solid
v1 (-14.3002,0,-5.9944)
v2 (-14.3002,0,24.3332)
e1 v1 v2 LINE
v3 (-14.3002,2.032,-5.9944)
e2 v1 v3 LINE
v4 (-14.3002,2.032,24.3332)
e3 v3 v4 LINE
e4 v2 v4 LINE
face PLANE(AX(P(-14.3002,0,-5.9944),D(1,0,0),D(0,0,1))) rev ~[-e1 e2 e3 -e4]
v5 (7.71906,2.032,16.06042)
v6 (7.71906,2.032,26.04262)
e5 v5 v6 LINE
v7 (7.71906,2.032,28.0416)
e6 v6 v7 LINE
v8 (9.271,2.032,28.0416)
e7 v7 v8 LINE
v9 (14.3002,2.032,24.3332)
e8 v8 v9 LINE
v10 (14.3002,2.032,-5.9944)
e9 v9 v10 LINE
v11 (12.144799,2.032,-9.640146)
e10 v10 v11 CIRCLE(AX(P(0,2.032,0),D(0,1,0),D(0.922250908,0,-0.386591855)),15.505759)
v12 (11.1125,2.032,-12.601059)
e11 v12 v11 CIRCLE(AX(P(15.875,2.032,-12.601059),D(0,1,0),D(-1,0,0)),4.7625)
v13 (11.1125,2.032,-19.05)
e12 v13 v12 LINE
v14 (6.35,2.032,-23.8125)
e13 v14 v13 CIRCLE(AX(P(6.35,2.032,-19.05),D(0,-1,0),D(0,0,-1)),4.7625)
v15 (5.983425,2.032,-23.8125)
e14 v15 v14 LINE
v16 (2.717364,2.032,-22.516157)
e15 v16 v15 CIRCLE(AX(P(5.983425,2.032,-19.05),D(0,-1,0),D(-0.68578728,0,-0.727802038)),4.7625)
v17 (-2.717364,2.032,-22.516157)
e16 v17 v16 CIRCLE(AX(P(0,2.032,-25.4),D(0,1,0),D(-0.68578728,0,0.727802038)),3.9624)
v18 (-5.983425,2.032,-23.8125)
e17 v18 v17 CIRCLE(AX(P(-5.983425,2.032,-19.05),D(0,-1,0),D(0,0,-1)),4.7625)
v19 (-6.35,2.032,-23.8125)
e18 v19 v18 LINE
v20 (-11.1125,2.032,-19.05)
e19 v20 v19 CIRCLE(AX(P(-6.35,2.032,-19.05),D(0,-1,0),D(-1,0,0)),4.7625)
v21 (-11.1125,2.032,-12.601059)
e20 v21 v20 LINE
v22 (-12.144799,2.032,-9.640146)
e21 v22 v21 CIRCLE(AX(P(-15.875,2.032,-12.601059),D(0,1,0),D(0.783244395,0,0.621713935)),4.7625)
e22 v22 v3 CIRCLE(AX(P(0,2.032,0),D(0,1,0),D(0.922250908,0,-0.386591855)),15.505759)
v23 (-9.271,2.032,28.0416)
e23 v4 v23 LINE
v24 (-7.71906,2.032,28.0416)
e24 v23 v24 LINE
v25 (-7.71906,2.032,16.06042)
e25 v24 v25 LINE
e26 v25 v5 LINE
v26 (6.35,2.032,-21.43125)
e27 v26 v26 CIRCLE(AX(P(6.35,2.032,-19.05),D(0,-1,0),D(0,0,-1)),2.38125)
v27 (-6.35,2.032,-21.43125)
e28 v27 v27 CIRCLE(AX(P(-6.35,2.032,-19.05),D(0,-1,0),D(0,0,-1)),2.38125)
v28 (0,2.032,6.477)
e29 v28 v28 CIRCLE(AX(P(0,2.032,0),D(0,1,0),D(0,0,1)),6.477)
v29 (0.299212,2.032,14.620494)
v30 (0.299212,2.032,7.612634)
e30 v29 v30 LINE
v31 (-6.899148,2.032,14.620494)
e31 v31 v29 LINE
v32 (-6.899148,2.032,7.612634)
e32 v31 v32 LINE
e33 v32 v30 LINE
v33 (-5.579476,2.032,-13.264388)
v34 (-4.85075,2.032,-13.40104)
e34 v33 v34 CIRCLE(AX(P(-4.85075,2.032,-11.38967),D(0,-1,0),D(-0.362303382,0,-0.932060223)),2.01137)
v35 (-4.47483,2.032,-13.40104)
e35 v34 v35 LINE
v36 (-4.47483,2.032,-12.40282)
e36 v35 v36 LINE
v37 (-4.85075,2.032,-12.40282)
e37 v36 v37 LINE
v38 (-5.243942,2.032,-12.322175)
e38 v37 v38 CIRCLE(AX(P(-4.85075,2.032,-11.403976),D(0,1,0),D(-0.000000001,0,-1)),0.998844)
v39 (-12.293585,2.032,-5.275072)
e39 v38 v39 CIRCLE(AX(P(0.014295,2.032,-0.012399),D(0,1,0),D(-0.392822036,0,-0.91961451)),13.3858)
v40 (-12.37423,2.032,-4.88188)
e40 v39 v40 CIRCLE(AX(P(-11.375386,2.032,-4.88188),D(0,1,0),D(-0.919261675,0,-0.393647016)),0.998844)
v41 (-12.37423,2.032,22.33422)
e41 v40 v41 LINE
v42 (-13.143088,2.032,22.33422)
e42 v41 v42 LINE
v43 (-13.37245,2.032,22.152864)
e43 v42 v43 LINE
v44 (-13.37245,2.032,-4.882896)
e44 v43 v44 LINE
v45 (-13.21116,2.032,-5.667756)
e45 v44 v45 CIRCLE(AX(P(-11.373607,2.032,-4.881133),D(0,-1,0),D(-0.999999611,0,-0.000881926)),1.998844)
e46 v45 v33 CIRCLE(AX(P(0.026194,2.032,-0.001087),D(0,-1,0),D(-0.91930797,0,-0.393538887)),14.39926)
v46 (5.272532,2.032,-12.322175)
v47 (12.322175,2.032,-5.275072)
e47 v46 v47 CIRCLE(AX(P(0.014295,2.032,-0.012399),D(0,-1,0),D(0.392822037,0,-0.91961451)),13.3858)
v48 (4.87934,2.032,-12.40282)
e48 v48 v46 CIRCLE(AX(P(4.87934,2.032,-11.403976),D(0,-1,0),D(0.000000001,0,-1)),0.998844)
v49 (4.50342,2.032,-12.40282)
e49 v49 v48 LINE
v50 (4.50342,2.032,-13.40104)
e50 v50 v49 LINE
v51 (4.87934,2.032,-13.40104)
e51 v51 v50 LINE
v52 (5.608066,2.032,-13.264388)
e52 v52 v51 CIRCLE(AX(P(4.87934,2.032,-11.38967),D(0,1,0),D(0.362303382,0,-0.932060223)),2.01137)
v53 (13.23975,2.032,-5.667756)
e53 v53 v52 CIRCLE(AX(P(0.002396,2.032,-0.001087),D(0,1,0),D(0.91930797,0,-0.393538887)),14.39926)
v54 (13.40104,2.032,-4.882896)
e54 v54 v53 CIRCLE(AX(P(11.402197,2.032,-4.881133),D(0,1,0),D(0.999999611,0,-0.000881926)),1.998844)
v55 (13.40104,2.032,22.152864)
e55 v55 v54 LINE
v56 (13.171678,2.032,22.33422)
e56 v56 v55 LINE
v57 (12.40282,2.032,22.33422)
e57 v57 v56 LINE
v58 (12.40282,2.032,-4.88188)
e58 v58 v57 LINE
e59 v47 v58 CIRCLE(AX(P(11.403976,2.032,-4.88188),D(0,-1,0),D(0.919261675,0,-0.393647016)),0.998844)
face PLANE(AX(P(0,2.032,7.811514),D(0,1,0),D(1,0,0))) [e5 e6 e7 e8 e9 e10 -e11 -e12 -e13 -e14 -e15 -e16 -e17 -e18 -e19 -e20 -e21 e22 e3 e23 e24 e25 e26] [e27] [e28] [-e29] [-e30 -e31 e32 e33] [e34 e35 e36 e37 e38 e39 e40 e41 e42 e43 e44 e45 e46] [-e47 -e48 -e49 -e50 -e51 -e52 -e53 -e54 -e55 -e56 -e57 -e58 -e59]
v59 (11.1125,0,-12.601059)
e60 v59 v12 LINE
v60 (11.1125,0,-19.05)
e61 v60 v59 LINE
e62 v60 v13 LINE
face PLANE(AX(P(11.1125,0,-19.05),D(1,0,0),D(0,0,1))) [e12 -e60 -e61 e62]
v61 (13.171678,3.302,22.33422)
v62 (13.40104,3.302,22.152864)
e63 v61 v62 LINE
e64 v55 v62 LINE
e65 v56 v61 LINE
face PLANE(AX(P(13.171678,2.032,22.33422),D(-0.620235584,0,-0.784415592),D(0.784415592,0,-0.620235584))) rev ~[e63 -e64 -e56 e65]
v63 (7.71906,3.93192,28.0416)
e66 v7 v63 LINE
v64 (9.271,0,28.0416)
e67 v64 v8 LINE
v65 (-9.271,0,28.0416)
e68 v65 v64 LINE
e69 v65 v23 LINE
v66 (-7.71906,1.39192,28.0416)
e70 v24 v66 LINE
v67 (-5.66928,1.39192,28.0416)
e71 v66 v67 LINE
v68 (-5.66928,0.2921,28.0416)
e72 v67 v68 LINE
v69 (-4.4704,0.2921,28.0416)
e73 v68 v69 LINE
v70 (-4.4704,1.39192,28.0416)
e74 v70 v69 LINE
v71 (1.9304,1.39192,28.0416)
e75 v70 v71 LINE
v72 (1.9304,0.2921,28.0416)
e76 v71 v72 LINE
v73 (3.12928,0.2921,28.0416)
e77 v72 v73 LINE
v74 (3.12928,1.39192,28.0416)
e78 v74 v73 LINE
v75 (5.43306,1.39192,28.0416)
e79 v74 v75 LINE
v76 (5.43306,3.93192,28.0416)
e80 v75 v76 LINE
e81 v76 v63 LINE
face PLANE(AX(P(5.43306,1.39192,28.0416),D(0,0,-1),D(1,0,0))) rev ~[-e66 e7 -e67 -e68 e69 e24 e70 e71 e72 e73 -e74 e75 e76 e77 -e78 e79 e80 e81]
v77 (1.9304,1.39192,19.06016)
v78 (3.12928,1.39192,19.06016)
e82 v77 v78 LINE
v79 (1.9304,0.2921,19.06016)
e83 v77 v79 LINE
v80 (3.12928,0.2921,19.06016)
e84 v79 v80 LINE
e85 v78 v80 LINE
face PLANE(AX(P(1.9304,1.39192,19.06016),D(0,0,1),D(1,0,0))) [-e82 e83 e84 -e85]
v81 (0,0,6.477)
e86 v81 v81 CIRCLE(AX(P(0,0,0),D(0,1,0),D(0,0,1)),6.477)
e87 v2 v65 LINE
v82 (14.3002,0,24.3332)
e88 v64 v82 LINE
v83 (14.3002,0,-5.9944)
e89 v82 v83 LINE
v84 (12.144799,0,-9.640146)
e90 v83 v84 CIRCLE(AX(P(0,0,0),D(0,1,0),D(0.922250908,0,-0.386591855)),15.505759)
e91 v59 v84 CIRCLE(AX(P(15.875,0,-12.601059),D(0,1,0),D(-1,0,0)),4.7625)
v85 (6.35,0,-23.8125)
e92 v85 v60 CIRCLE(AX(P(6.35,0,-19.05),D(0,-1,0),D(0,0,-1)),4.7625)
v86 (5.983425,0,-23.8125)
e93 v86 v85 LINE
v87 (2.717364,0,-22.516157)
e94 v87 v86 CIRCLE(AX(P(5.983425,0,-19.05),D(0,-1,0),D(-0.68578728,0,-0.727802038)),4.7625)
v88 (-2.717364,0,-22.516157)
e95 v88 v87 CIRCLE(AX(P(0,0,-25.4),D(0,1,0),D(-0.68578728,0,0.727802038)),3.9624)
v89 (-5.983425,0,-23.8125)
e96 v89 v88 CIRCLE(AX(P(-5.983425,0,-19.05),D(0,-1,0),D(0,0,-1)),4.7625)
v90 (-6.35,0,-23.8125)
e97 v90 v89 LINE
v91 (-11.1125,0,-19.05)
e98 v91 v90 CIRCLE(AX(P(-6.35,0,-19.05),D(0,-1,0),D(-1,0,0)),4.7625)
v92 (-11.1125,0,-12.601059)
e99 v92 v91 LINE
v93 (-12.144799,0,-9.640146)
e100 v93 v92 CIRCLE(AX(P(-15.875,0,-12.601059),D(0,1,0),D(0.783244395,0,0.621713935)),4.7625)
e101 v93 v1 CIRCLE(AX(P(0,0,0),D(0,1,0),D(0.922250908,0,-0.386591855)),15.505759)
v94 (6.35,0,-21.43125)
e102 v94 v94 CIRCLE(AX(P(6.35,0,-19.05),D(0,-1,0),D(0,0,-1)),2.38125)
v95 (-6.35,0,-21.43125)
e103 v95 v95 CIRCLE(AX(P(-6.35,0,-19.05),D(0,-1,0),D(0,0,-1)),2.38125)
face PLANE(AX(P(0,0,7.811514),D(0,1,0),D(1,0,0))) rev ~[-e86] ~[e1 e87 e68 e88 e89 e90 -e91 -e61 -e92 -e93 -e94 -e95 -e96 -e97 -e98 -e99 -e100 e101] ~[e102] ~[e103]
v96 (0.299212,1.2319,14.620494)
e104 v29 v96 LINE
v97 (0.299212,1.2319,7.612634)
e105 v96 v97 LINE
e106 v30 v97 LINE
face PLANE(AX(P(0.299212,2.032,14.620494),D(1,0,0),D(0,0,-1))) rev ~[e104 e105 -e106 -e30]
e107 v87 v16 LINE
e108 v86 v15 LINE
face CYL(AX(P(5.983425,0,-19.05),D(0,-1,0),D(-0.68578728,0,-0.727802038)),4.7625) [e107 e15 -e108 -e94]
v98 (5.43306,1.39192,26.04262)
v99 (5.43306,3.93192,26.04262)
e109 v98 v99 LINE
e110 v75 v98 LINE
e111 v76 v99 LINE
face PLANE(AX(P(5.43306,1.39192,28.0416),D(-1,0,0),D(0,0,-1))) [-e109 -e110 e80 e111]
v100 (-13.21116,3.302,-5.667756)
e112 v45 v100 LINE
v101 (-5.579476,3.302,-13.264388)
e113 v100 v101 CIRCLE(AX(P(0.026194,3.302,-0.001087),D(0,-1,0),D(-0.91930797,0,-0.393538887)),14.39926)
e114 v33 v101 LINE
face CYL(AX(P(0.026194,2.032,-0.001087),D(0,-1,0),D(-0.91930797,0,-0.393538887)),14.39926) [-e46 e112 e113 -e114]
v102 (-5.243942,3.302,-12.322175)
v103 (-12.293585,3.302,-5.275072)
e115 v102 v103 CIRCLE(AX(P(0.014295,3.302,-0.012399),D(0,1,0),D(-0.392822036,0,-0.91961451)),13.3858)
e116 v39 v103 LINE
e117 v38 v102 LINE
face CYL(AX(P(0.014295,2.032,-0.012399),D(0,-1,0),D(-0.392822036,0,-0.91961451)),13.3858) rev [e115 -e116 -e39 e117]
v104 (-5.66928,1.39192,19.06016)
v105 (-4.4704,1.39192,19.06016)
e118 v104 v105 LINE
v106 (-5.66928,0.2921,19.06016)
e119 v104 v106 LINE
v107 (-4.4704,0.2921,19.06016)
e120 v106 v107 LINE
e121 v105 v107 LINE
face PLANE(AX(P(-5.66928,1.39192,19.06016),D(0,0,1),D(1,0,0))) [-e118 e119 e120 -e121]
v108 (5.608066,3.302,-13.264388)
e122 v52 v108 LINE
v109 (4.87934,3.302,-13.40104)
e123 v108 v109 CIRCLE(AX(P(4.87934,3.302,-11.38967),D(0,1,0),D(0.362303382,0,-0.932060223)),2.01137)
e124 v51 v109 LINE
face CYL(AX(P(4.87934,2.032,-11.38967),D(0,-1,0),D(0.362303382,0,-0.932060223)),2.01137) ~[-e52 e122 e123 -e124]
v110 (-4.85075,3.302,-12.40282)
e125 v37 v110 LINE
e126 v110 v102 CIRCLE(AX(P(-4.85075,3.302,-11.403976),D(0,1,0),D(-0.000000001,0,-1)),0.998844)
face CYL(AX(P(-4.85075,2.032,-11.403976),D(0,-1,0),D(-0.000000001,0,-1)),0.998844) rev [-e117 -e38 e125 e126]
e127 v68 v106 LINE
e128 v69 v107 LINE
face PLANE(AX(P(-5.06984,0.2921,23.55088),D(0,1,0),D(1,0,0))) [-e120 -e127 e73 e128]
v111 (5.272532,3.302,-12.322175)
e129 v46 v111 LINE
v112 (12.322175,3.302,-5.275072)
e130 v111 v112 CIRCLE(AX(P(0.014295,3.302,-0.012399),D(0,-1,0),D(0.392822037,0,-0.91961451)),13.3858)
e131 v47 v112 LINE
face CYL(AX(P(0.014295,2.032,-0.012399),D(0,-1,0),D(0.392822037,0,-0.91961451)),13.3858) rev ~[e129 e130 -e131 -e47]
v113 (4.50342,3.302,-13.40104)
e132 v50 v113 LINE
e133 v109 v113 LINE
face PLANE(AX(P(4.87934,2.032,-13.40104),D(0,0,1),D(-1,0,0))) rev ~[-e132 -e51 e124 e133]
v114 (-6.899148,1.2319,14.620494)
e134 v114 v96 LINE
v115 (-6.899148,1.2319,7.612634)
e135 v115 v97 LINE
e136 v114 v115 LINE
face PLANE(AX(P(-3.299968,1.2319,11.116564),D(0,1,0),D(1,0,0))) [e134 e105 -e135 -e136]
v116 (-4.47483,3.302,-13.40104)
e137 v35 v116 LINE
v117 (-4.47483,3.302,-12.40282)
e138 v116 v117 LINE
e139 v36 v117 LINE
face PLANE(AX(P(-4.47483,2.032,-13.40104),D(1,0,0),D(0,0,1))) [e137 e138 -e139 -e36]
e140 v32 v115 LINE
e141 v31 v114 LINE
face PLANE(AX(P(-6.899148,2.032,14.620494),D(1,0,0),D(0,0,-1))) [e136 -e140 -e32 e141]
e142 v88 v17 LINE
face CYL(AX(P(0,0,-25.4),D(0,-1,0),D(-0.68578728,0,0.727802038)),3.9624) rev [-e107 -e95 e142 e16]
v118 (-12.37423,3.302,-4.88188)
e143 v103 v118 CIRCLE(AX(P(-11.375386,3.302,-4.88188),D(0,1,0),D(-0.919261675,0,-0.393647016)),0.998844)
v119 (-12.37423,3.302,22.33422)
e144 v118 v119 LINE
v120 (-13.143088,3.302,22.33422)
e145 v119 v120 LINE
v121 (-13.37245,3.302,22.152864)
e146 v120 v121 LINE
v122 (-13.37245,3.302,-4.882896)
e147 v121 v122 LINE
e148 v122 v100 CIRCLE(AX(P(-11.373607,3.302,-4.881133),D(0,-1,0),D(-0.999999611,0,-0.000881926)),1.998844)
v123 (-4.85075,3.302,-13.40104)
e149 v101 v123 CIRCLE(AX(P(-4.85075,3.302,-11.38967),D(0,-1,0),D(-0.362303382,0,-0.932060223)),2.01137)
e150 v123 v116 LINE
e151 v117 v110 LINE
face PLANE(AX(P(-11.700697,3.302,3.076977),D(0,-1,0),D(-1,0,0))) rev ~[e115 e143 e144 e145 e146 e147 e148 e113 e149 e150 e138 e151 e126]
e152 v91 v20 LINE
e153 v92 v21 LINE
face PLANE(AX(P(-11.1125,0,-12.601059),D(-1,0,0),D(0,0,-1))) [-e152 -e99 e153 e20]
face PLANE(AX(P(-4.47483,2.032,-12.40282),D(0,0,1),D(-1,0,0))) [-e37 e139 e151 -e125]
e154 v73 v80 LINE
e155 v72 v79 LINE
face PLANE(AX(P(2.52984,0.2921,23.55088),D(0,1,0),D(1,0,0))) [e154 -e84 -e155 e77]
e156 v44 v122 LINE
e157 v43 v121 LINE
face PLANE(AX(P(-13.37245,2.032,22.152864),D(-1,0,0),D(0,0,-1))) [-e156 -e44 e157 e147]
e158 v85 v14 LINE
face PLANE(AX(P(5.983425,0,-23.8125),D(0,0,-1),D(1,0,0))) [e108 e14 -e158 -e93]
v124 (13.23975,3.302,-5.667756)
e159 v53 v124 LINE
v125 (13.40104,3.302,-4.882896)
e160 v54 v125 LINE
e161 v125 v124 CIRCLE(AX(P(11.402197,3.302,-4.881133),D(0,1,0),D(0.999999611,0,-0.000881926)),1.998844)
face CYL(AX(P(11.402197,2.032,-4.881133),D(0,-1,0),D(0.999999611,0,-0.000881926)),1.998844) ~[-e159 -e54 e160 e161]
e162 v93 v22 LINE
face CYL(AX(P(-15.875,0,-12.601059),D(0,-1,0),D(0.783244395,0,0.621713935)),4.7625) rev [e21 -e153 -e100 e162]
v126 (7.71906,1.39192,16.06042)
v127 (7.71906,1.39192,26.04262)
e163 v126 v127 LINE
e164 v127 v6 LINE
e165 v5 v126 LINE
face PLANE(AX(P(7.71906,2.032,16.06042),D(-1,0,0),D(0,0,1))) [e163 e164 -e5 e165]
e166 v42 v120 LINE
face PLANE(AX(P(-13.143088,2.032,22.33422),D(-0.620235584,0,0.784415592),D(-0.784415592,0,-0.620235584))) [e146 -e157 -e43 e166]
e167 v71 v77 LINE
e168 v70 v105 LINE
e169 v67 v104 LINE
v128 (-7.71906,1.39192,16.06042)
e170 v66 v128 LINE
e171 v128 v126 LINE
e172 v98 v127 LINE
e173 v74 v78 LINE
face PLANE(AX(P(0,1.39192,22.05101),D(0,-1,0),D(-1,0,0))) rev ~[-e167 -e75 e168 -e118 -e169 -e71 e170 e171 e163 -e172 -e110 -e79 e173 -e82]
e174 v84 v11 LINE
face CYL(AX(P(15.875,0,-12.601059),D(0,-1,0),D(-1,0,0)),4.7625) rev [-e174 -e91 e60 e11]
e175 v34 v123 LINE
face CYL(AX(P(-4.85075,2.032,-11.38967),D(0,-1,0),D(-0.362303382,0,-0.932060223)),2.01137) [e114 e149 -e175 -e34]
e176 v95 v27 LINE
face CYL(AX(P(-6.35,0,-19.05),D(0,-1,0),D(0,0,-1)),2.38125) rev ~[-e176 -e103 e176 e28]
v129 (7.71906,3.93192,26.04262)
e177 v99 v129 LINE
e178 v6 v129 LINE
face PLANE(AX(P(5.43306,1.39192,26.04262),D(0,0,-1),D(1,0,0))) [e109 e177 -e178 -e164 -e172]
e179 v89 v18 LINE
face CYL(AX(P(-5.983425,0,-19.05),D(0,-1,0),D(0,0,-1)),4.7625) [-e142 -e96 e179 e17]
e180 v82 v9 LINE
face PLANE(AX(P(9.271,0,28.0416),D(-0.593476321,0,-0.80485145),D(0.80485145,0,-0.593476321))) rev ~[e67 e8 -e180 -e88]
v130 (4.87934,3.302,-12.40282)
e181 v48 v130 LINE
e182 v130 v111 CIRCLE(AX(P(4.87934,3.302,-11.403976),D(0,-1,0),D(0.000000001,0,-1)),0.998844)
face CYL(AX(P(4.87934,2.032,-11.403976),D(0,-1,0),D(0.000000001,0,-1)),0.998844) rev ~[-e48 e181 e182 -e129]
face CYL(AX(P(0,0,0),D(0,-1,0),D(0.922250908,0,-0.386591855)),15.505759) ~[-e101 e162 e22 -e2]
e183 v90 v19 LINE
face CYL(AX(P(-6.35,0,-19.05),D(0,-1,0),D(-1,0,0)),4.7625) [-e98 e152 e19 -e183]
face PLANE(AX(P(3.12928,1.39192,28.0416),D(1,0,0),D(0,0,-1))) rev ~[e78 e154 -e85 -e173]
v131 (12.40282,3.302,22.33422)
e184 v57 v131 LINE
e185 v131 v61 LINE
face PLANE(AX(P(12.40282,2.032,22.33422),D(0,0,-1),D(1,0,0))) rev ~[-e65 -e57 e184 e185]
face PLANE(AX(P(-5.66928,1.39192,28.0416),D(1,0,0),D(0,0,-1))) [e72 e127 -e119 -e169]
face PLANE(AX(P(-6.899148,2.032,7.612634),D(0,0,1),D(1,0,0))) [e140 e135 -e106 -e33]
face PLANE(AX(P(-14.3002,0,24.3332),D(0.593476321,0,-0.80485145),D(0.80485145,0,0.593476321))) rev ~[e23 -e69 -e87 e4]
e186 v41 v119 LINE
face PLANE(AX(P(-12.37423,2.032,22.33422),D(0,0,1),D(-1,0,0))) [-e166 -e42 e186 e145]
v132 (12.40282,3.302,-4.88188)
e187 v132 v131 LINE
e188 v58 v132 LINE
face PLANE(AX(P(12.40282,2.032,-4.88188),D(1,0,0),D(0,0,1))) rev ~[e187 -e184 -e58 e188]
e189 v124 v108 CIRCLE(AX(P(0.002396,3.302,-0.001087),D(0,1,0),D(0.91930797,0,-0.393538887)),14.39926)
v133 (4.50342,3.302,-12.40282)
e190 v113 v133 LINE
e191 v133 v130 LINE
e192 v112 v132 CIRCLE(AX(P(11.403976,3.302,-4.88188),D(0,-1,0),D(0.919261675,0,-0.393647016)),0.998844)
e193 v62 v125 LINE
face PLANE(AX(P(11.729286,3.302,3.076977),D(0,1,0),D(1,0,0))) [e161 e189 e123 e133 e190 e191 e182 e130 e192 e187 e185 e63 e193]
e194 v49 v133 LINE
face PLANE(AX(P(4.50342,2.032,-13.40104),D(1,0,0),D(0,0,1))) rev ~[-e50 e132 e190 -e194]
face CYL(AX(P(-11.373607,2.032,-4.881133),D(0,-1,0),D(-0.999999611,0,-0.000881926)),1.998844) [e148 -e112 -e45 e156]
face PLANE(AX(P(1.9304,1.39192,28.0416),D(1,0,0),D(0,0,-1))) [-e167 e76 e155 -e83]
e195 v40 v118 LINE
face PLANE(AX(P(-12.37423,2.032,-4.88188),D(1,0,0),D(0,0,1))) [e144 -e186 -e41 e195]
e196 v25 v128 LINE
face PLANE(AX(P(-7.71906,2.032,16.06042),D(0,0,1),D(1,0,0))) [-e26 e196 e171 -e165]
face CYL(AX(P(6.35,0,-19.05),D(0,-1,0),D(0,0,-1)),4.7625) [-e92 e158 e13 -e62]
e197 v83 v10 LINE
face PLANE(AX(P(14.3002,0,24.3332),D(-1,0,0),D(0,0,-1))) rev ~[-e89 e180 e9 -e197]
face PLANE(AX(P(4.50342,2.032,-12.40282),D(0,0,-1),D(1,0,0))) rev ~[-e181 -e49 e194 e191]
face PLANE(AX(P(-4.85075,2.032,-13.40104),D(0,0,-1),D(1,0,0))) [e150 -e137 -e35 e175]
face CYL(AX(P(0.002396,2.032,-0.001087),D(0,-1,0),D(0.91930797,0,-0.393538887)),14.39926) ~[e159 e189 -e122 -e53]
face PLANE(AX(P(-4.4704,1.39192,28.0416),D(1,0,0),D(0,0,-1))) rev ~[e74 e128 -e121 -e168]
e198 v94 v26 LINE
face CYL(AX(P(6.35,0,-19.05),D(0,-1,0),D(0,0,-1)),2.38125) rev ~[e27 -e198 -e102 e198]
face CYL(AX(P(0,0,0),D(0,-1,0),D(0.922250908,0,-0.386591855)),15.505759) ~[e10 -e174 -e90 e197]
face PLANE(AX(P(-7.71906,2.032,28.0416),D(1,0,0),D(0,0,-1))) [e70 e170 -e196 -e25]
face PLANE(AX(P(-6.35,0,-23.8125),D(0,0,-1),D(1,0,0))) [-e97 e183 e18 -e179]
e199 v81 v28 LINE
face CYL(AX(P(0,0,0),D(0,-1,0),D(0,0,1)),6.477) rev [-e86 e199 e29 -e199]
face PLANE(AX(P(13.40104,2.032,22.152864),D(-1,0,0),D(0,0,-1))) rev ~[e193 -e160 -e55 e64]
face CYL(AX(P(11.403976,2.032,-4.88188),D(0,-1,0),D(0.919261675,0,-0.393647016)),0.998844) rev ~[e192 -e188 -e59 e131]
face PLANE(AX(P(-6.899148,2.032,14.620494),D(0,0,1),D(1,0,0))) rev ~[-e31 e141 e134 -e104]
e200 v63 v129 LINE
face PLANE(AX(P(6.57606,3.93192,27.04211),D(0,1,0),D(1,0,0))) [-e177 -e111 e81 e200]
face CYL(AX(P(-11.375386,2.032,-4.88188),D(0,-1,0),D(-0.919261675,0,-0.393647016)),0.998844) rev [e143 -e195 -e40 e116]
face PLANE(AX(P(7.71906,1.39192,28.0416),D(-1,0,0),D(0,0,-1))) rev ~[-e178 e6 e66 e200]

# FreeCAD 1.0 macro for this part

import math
import FreeCAD as App
import Part
import Sketcher
from FreeCAD import Vector
Q = App.Units.Quantity

doc = App.newDocument("Part")
params = doc.addObject("Spreadsheet::Sheet", "Params")
for row, (alias, value) in enumerate([
    ("sketch1_diameter", "0.51 in"),
    ("sketch1_width", "0.73 in"),
    ("sketch1_height", "1.194 in"),
    ("pad1_length", "0.08 in"),
    ("pocket1_length", "0.0252 in"),
    ("pocket2_length", "0.0433 in"),
    ("pocket3_length", "0.0315 in"),
    ("sketch5_radius", "0.527 in"),
    ("pad2_length", "0.05 in"),
    ("sketch6_width", "0.09 in"),
    ("pad3_length", "0.1 in"),
    ("sketch7_diameter", "0.1875 in"),
    ("sketch7_radius", "0.1875 in"),
    ("sketch7_radius2", "0.156 in"),
    ("pad4_length", "0.08 in"),
], start=1):
    params.set(f"A{row}", alias)
    params.set(f"B{row}", "=" + value)
    params.setAlias(f"B{row}", alias)

body = doc.addObject("PartDesign::Body", "Body")

# Sketch on XZ plane
sketch1 = body.newObject("Sketcher::SketchObject", "Sketch")
sketch1.AttachmentSupport = (doc.getObject("XZ_Plane"), [""])
sketch1.MapMode = "FlatFace"
sketch1.addGeometry(Part.LineSegment(Vector(-14, -6, 0), Vector(-14, 24, 0)), False)
sketch1.addGeometry(Part.LineSegment(Vector(-14, 24, 0), Vector(-9, 28, 0)), False)
sketch1.addGeometry(Part.LineSegment(Vector(-9, 28, 0), Vector(9, 28, 0)), False)
sketch1.addGeometry(Part.LineSegment(Vector(9, 28, 0), Vector(14, 24, 0)), False)
sketch1.addGeometry(Part.LineSegment(Vector(14, 24, 0), Vector(14, -6, 0)), False)
sketch1.addGeometry(Part.ArcOfCircle(Part.Circle(Vector(0, 0, 0), Vector(0, 0, 1), 16), math.radians(-157), math.radians(-23)), False)
sketch1.addGeometry(Part.Circle(Vector(0, 0, 0), Vector(0, 0, 1), 6), False)
sketch1.addConstraint(Sketcher.Constraint("Coincident", 0, 2, 1, 1))
sketch1.addConstraint(Sketcher.Constraint("Coincident", 1, 2, 2, 1))
sketch1.addConstraint(Sketcher.Constraint("Coincident", 2, 2, 3, 1))
sketch1.addConstraint(Sketcher.Constraint("Coincident", 3, 2, 4, 1))
sketch1.addConstraint(Sketcher.Constraint("Coincident", 4, 2, 5, 2))
sketch1.addConstraint(Sketcher.Constraint("Coincident", 5, 1, 0, 1))
sketch1.addConstraint(Sketcher.Constraint("Vertical", 0))
sketch1.addConstraint(Sketcher.Constraint("Horizontal", 2))
sketch1.addConstraint(Sketcher.Constraint("Vertical", 4))
sketch1.addConstraint(Sketcher.Constraint("Coincident", 5, 3, -1, 1))
sketch1.addConstraint(Sketcher.Constraint("Coincident", 6, 3, -1, 1))
sketch1.addConstraint(Sketcher.Constraint("Symmetric", 0, 2, 3, 2, -2))
sketch1.addConstraint(Sketcher.Constraint("Equal", 1, 3))
sketch1.addConstraint(Sketcher.Constraint("Diameter", 6, Q("0.51 in")))
sketch1.addConstraint(Sketcher.Constraint("DistanceX", 2, 1, 2, 2, Q("0.73 in")))
sketch1.addConstraint(Sketcher.Constraint("DistanceY", 0, 1, 0, 2, Q("1.194 in")))
sketch1.addConstraint(Sketcher.Constraint("DistanceY", 4, 2, 2, 2, Q("1.34 in")))
sketch1.addConstraint(Sketcher.Constraint("DistanceX", 0, 2, -1, 1, Q("0.563 in")))
sketch1.addConstraint(Sketcher.Constraint("DistanceY", -1, 1, 0, 2, Q("0.958 in")))
sketch1.setExpression("Constraints[13]", "Params.sketch1_diameter")
sketch1.setExpression("Constraints[14]", "Params.sketch1_width")
sketch1.setExpression("Constraints[15]", "Params.sketch1_height")
pad1 = body.newObject("PartDesign::Pad", "Pad")
pad1.Profile = sketch1
pad1.setExpression("Length", "Params.pad1_length")
pad1.Reversed = True

# Sketch on XZ plane
sketch2 = body.newObject("Sketcher::SketchObject", "Sketch001")
sketch2.AttachmentSupport = (doc.getObject("XZ_Plane"), [""])
sketch2.MapMode = "FlatFace"
sketch2.AttachmentOffset = App.Placement(Vector(0, 0, -0.08 * 25.4), App.Rotation())
sketch2.addGeometry(Part.LineSegment(Vector(-8, 28, 0), Vector(8, 28, 0)), False)
sketch2.addGeometry(Part.LineSegment(Vector(8, 28, 0), Vector(8, 16, 0)), False)
sketch2.addGeometry(Part.LineSegment(Vector(8, 16, 0), Vector(-8, 16, 0)), False)
sketch2.addGeometry(Part.LineSegment(Vector(-8, 16, 0), Vector(-8, 28, 0)), False)
sketch2.addConstraint(Sketcher.Constraint("Coincident", 0, 2, 1, 1))
sketch2.addConstraint(Sketcher.Constraint("Coincident", 1, 2, 2, 1))
sketch2.addConstraint(Sketcher.Constraint("Coincident", 2, 2, 3, 1))
sketch2.addConstraint(Sketcher.Constraint("Coincident", 3, 2, 0, 1))
sketch2.addConstraint(Sketcher.Constraint("Horizontal", 0))
sketch2.addConstraint(Sketcher.Constraint("Vertical", 1))
sketch2.addConstraint(Sketcher.Constraint("Horizontal", 2))
sketch2.addConstraint(Sketcher.Constraint("Vertical", 3))
sketch2.addConstraint(Sketcher.Constraint("DistanceX", 0, 1, 0, 2, Q("0.6078 in")))
sketch2.addConstraint(Sketcher.Constraint("DistanceY", 1, 2, 1, 1, Q("0.4717 in")))
sketch2.addConstraint(Sketcher.Constraint("DistanceY", -1, 1, 0, 2, Q("1.104 in")))
sketch2.addConstraint(Sketcher.Constraint("DistanceX", -1, 1, 0, 2, Q("0.3039 in")))
pocket1 = body.newObject("PartDesign::Pocket", "Pocket")
pocket1.Profile = sketch2
pocket1.setExpression("Length", "Params.pocket1_length")
pocket1.Reversed = True

# Sketch on XZ plane
sketch3 = body.newObject("Sketcher::SketchObject", "Sketch002")
sketch3.AttachmentSupport = (doc.getObject("XZ_Plane"), [""])
sketch3.MapMode = "FlatFace"
sketch3.AttachmentOffset = App.Placement(Vector(0, 0, -0.0548 * 25.4), App.Rotation())
sketch3.addGeometry(Part.LineSegment(Vector(-5.7, 19.1, 0), Vector(-5.7, 28, 0)), False)
sketch3.addGeometry(Part.LineSegment(Vector(-5.7, 28, 0), Vector(-4.5, 28, 0)), False)
sketch3.addGeometry(Part.LineSegment(Vector(-4.5, 28, 0), Vector(-4.5, 19.1, 0)), False)
sketch3.addGeometry(Part.LineSegment(Vector(-4.5, 19.1, 0), Vector(-5.7, 19.1, 0)), False)
sketch3.addGeometry(Part.LineSegment(Vector(1.9, 19.1, 0), Vector(1.9, 28, 0)), False)
sketch3.addGeometry(Part.LineSegment(Vector(1.9, 28, 0), Vector(3.1, 28, 0)), False)
sketch3.addGeometry(Part.LineSegment(Vector(3.1, 28, 0), Vector(3.1, 19.1, 0)), False)
sketch3.addGeometry(Part.LineSegment(Vector(3.1, 19.1, 0), Vector(1.9, 19.1, 0)), False)
sketch3.addConstraint(Sketcher.Constraint("Coincident", 0, 2, 1, 1))
sketch3.addConstraint(Sketcher.Constraint("Coincident", 1, 2, 2, 1))
sketch3.addConstraint(Sketcher.Constraint("Coincident", 2, 2, 3, 1))
sketch3.addConstraint(Sketcher.Constraint("Coincident", 3, 2, 0, 1))
sketch3.addConstraint(Sketcher.Constraint("Coincident", 4, 2, 5, 1))
sketch3.addConstraint(Sketcher.Constraint("Coincident", 5, 2, 6, 1))
sketch3.addConstraint(Sketcher.Constraint("Coincident", 6, 2, 7, 1))
sketch3.addConstraint(Sketcher.Constraint("Coincident", 7, 2, 4, 1))
sketch3.addConstraint(Sketcher.Constraint("Vertical", 0))
sketch3.addConstraint(Sketcher.Constraint("Horizontal", 1))
sketch3.addConstraint(Sketcher.Constraint("Vertical", 2))
sketch3.addConstraint(Sketcher.Constraint("Horizontal", 3))
sketch3.addConstraint(Sketcher.Constraint("Vertical", 4))
sketch3.addConstraint(Sketcher.Constraint("Horizontal", 5))
sketch3.addConstraint(Sketcher.Constraint("Vertical", 6))
sketch3.addConstraint(Sketcher.Constraint("Horizontal", 7))
sketch3.addConstraint(Sketcher.Constraint("Horizontal", 1, 2, 4, 2))
sketch3.addConstraint(Sketcher.Constraint("Horizontal", 3, 2, 6, 2))
sketch3.addConstraint(Sketcher.Constraint("Equal", 3, 5))
sketch3.addConstraint(Sketcher.Constraint("DistanceX", 1, 1, 1, 2, Q("0.0472 in")))
sketch3.addConstraint(Sketcher.Constraint("DistanceY", 0, 1, 0, 2, Q("0.3536 in")))
sketch3.addConstraint(Sketcher.Constraint("DistanceY", -1, 1, 0, 2, Q("1.104 in")))
sketch3.addConstraint(Sketcher.Constraint("DistanceX", 1, 2, -1, 1, Q("0.176 in")))
sketch3.addConstraint(Sketcher.Constraint("DistanceX", -1, 1, 4, 2, Q("0.076 in")))
pocket2 = body.newObject("PartDesign::Pocket", "Pocket001")
pocket2.Profile = sketch3
pocket2.setExpression("Length", "Params.pocket2_length")
pocket2.Reversed = True

# Sketch on XZ plane
sketch4 = body.newObject("Sketcher::SketchObject", "Sketch003")
sketch4.AttachmentSupport = (doc.getObject("XZ_Plane"), [""])
sketch4.MapMode = "FlatFace"
sketch4.AttachmentOffset = App.Placement(Vector(0, 0, -0.08 * 25.4), App.Rotation())
sketch4.addGeometry(Part.LineSegment(Vector(-7, 8, 0), Vector(-7, 15, 0)), False)
sketch4.addGeometry(Part.LineSegment(Vector(-7, 15, 0), Vector(0, 15, 0)), False)
sketch4.addGeometry(Part.LineSegment(Vector(0, 15, 0), Vector(0, 8, 0)), False)
sketch4.addGeometry(Part.LineSegment(Vector(0, 8, 0), Vector(-7, 8, 0)), False)
sketch4.addConstraint(Sketcher.Constraint("Coincident", 0, 2, 1, 1))
sketch4.addConstraint(Sketcher.Constraint("Coincident", 1, 2, 2, 1))
sketch4.addConstraint(Sketcher.Constraint("Coincident", 2, 2, 3, 1))
sketch4.addConstraint(Sketcher.Constraint("Coincident", 3, 2, 0, 1))
sketch4.addConstraint(Sketcher.Constraint("Vertical", 0))
sketch4.addConstraint(Sketcher.Constraint("Horizontal", 1))
sketch4.addConstraint(Sketcher.Constraint("Vertical", 2))
sketch4.addConstraint(Sketcher.Constraint("Horizontal", 3))
sketch4.addConstraint(Sketcher.Constraint("DistanceX", 1, 1, 1, 2, Q("0.2834 in")))
sketch4.addConstraint(Sketcher.Constraint("DistanceY", 0, 1, 0, 2, Q("0.2759 in")))
sketch4.addConstraint(Sketcher.Constraint("DistanceX", 0, 2, -1, 1, 6.899148))
sketch4.addConstraint(Sketcher.Constraint("DistanceY", -1, 1, 0, 2, 14.620494))
pocket3 = body.newObject("PartDesign::Pocket", "Pocket002")
pocket3.Profile = sketch4
pocket3.setExpression("Length", "Params.pocket3_length")
pocket3.Reversed = True

# Sketch on XZ plane
sketch5 = body.newObject("Sketcher::SketchObject", "Sketch004")
sketch5.AttachmentSupport = (doc.getObject("XZ_Plane"), [""])
sketch5.MapMode = "FlatFace"
sketch5.AttachmentOffset = App.Placement(Vector(0, 0, -0.08 * 25.4), App.Rotation())
sketch5.addGeometry(Part.LineSegment(Vector(12.4, 22.33, 0), Vector(13.17, 22.33, 0)), False)
sketch5.addGeometry(Part.LineSegment(Vector(13.17, 22.33, 0), Vector(13.4, 22.15, 0)), False)
sketch5.addGeometry(Part.LineSegment(Vector(13.4, 22.15, 0), Vector(13.4, -4.88, 0)), False)
sketch5.addGeometry(Part.ArcOfCircle(Part.Circle(Vector(11.4, -4.88, 0), Vector(0, 0, 1), 2), math.radians(-23), math.radians(0)), False)
sketch5.addGeometry(Part.ArcOfCircle(Part.Circle(Vector(0, 0, 0), Vector(0, 0, 1), 14.4), math.radians(-67), math.radians(-23)), False)
sketch5.addGeometry(Part.ArcOfCircle(Part.Circle(Vector(4.88, -11.39, 0), Vector(0, 0, 1), 2.01), math.radians(-90), math.radians(-69)), False)
sketch5.addGeometry(Part.LineSegment(Vector(4.88, -13.4, 0), Vector(4.5, -13.4, 0)), False)
sketch5.addGeometry(Part.LineSegment(Vector(4.5, -13.4, 0), Vector(4.5, -12.4, 0)), False)
sketch5.addGeometry(Part.LineSegment(Vector(4.5, -12.4, 0), Vector(4.88, -12.4, 0)), False)
sketch5.addGeometry(Part.ArcOfCircle(Part.Circle(Vector(4.88, -11.4, 0), Vector(0, 0, 1), 1), math.radians(-90), math.radians(-67)), False)
sketch5.addGeometry(Part.ArcOfCircle(Part.Circle(Vector(0.01, -0.01, 0), Vector(0, 0, 1), 13.39), math.radians(-67), math.radians(-23)), False)
sketch5.addGeometry(Part.ArcOfCircle(Part.Circle(Vector(11.4, -4.88, 0), Vector(0, 0, 1), 1), math.radians(-23), math.radians(0)), False)
sketch5.addGeometry(Part.LineSegment(Vector(12.4, -4.88, 0), Vector(12.4, 22.33, 0)), False)
sketch5.addGeometry(Part.LineSegment(Vector(-4.47, -13.4, 0), Vector(-4.85, -13.4, 0)), False)
sketch5.addGeometry(Part.ArcOfCircle(Part.Circle(Vector(-4.85, -11.39, 0), Vector(0, 0, 1), 2.01), math.radians(-111), math.radians(-90)), False)
sketch5.addGeometry(Part.ArcOfCircle(Part.Circle(Vector(0.03, 0, 0), Vector(0, 0, 1), 14.4), math.radians(-157), math.radians(-113)), False)
sketch5.addGeometry(Part.ArcOfCircle(Part.Circle(Vector(-11.37, -4.88, 0), Vector(0, 0, 1), 2), math.radians(-180), math.radians(-157)), False)
sketch5.addGeometry(Part.LineSegment(Vector(-13.37, -4.88, 0), Vector(-13.37, 22.15, 0)), False)
sketch5.addGeometry(Part.LineSegment(Vector(-13.37, 22.15, 0), Vector(-13.14, 22.33, 0)), False)
sketch5.addGeometry(Part.LineSegment(Vector(-13.14, 22.33, 0), Vector(-12.37, 22.33, 0)), False)
sketch5.addGeometry(Part.LineSegment(Vector(-12.37, 22.33, 0), Vector(-12.37, -4.88, 0)), False)
sketch5.addGeometry(Part.ArcOfCircle(Part.Circle(Vector(-11.38, -4.88, 0), Vector(0, 0, 1), 1), math.radians(-180), math.radians(-157)), False)
sketch5.addGeometry(Part.ArcOfCircle(Part.Circle(Vector(0.01, -0.01, 0), Vector(0, 0, 1), 13.39), math.radians(-157), math.radians(-113)), False)
sketch5.addGeometry(Part.ArcOfCircle(Part.Circle(Vector(-4.85, -11.4, 0), Vector(0, 0, 1), 1), math.radians(-113), math.radians(-90)), False)
sketch5.addGeometry(Part.LineSegment(Vector(-4.85, -12.4, 0), Vector(-4.47, -12.4, 0)), False)
sketch5.addGeometry(Part.LineSegment(Vector(-4.47, -12.4, 0), Vector(-4.47, -13.4, 0)), False)
sketch5.addConstraint(Sketcher.Constraint("Coincident", 0, 2, 1, 1))
sketch5.addConstraint(Sketcher.Constraint("Coincident", 1, 2, 2, 1))
sketch5.addConstraint(Sketcher.Constraint("Coincident", 2, 2, 3, 2))
sketch5.addConstraint(Sketcher.Constraint("Tangent", 3, 1, 4, 2))
sketch5.addConstraint(Sketcher.Constraint("Coincident", 4, 1, 5, 2))
sketch5.addConstraint(Sketcher.Constraint("Tangent", 5, 1, 6, 1))
sketch5.addConstraint(Sketcher.Constraint("Coincident", 6, 2, 7, 1))
sketch5.addConstraint(Sketcher.Constraint("Coincident", 7, 2, 8, 1))
sketch5.addConstraint(Sketcher.Constraint("Tangent", 8, 2, 9, 1))
sketch5.addConstraint(Sketcher.Constraint("Coincident", 9, 2, 10, 1))
sketch5.addConstraint(Sketcher.Constraint("Coincident", 10, 2, 11, 1))
sketch5.addConstraint(Sketcher.Constraint("Tangent", 11, 2, 12, 1))
sketch5.addConstraint(Sketcher.Constraint("Coincident", 12, 2, 0, 1))
sketch5.addConstraint(Sketcher.Constraint("Tangent", 13, 2, 14, 2))
sketch5.addConstraint(Sketcher.Constraint("Coincident", 14, 1, 15, 2))
sketch5.addConstraint(Sketcher.Constraint("Tangent", 15, 1, 16, 2))
sketch5.addConstraint(Sketcher.Constraint("Coincident", 16, 1, 17, 1))
sketch5.addConstraint(Sketcher.Constraint("Coincident", 17, 2, 18, 1))
sketch5.addConstraint(Sketcher.Constraint("Coincident", 18, 2, 19, 1))
sketch5.addConstraint(Sketcher.Constraint("Coincident", 19, 2, 20, 1))
sketch5.addConstraint(Sketcher.Constraint("Tangent", 20, 2, 21, 1))
sketch5.addConstraint(Sketcher.Constraint("Coincident", 21, 2, 22, 1))
sketch5.addConstraint(Sketcher.Constraint("Coincident", 22, 2, 23, 1))
sketch5.addConstraint(Sketcher.Constraint("Tangent", 23, 2, 24, 1))
sketch5.addConstraint(Sketcher.Constraint("Coincident", 24, 2, 25, 1))
sketch5.addConstraint(Sketcher.Constraint("Coincident", 25, 2, 13, 1))
sketch5.addConstraint(Sketcher.Constraint("Horizontal", 0))
sketch5.addConstraint(Sketcher.Constraint("Vertical", 2))
sketch5.addConstraint(Sketcher.Constraint("Horizontal", 6))
sketch5.addConstraint(Sketcher.Constraint("Vertical", 7))
sketch5.addConstraint(Sketcher.Constraint("Horizontal", 8))
sketch5.addConstraint(Sketcher.Constraint("Vertical", 12))
sketch5.addConstraint(Sketcher.Constraint("Horizontal", 13))
sketch5.addConstraint(Sketcher.Constraint("Vertical", 17))
sketch5.addConstraint(Sketcher.Constraint("Horizontal", 19))
sketch5.addConstraint(Sketcher.Constraint("Vertical", 20))
sketch5.addConstraint(Sketcher.Constraint("Horizontal", 24))
sketch5.addConstraint(Sketcher.Constraint("Vertical", 25))
sketch5.addConstraint(Sketcher.Constraint("Coincident", 22, 3, 10, 3))
sketch5.addConstraint(Sketcher.Constraint("Equal", 9, 11))
sketch5.addConstraint(Sketcher.Constraint("Equal", 5, 14))
sketch5.addConstraint(Sketcher.Constraint("Equal", 4, 15))
sketch5.addConstraint(Sketcher.Constraint("Equal", 3, 16))
sketch5.addConstraint(Sketcher.Constraint("Equal", 11, 21))
sketch5.addConstraint(Sketcher.Constraint("Equal", 10, 22))
sketch5.addConstraint(Sketcher.Constraint("Equal", 21, 23))
sketch5.addConstraint(Sketcher.Constraint("Horizontal", 5, 3, 14, 3))
sketch5.addConstraint(Sketcher.Constraint("Horizontal", 4, 3, 15, 3))
sketch5.addConstraint(Sketcher.Constraint("Horizontal", 3, 3, 16, 3))
sketch5.addConstraint(Sketcher.Constraint("Horizontal", 11, 3, 21, 3))
sketch5.addConstraint(Sketcher.Constraint("Horizontal", 9, 3, 23, 3))
sketch5.addConstraint(Sketcher.Constraint("Horizontal", 4, 1, 14, 1))
sketch5.addConstraint(Sketcher.Constraint("Horizontal", 2, 2, 16, 1))
sketch5.addConstraint(Sketcher.Constraint("Horizontal", 1, 2, 17, 2))
sketch5.addConstraint(Sketcher.Constraint("Horizontal", 12, 2, 18, 2))
sketch5.addConstraint(Sketcher.Constraint("Horizontal", 10, 2, 21, 2))
sketch5.addConstraint(Sketcher.Constraint("Horizontal", 9, 2, 22, 2))
sketch5.addConstraint(Sketcher.Constraint("Vertical", 5, 3, 9, 3))
sketch5.addConstraint(Sketcher.Constraint("Vertical", 14, 3, 23, 3))
sketch5.addConstraint(Sketcher.Constraint("Equal", 8, 13))
sketch5.addConstraint(Sketcher.Constraint("Equal", 0, 19))
sketch5.addConstraint(Sketcher.Constraint("Radius", 10, Q("0.527 in")))
sketch5.addConstraint(Sketcher.Constraint("Radius", 4, Q("0.5669 in")))
sketch5.addConstraint(Sketcher.Constraint("DistanceX", 6, 2, 6, 1, Q("0.0148 in")))
sketch5.addConstraint(Sketcher.Constraint("DistanceY", 2, 2, 2, 1, Q("1.0644 in")))
sketch5.addConstraint(Sketcher.Constraint("DistanceY", 7, 1, 7, 2, Q("0.0393 in")))
sketch5.addConstraint(Sketcher.Constraint("DistanceY", 12, 1, 12, 2, Q("1.0715 in")))
sketch5.addConstraint(Sketcher.Constraint("Radius", 5, 2.01137))
sketch5.addConstraint(Sketcher.Constraint("DistanceX", -1, 1, 5, 3, Q("0.1921 in")))
sketch5.addConstraint(Sketcher.Constraint("DistanceY", 11, 3, -1, 1, Q("0.1922 in")))
sketch5.addConstraint(Sketcher.Constraint("DistanceX", -1, 1, 1, 2, Q("0.5276 in")))
sketch5.addConstraint(Sketcher.Constraint("DistanceY", 5, 1, -1, 1, Q("0.5276 in")))
sketch5.addConstraint(Sketcher.Constraint("DistanceX", -1, 1, 11, 2, Q("0.4883 in")))
sketch5.addConstraint(Sketcher.Constraint("Radius", 3, 1.998844))
sketch5.addConstraint(Sketcher.Constraint("Radius", 9, 0.998844))
sketch5.addConstraint(Sketcher.Constraint("DistanceY", 3, 1, 2, 2, Q("0.0309 in")))
sketch5.addConstraint(Sketcher.Constraint("Distance", 1, 0.292399))
sketch5.addConstraint(Sketcher.Constraint("DistanceX", 4, 3, 3, 3, 11.399801))
sketch5.addConstraint(Sketcher.Constraint("DistanceY", 9, 2, 9, 3, 0.918199))
sketch5.addConstraint(Sketcher.Constraint("DistanceX", 11, 3, 10, 2, 0.918199))
sketch5.addConstraint(Sketcher.Constraint("DistanceX", 0, 1, 0, 2, 0.768858))
sketch5.setExpression("Constraints[61]", "Params.sketch5_radius")
pad2 = body.newObject("PartDesign::Pad", "Pad001")
pad2.Profile = sketch5
pad2.setExpression("Length", "Params.pad2_length")
pad2.Reversed = True

# Sketch on XZ plane
sketch6 = body.newObject("Sketcher::SketchObject", "Sketch005")
sketch6.AttachmentSupport = (doc.getObject("XZ_Plane"), [""])
sketch6.MapMode = "FlatFace"
sketch6.AttachmentOffset = App.Placement(Vector(0, 0, -0.0548 * 25.4), App.Rotation())
sketch6.addGeometry(Part.LineSegment(Vector(5.4, 26, 0), Vector(5.4, 28, 0)), False)
sketch6.addGeometry(Part.LineSegment(Vector(5.4, 28, 0), Vector(7.7, 28, 0)), False)
sketch6.addGeometry(Part.LineSegment(Vector(7.7, 28, 0), Vector(7.7, 26, 0)), False)
sketch6.addGeometry(Part.LineSegment(Vector(7.7, 26, 0), Vector(5.4, 26, 0)), False)
sketch6.addConstraint(Sketcher.Constraint("Coincident", 0, 2, 1, 1))
sketch6.addConstraint(Sketcher.Constraint("Coincident", 1, 2, 2, 1))
sketch6.addConstraint(Sketcher.Constraint("Coincident", 2, 2, 3, 1))
sketch6.addConstraint(Sketcher.Constraint("Coincident", 3, 2, 0, 1))
sketch6.addConstraint(Sketcher.Constraint("Vertical", 0))
sketch6.addConstraint(Sketcher.Constraint("Horizontal", 1))
sketch6.addConstraint(Sketcher.Constraint("Vertical", 2))
sketch6.addConstraint(Sketcher.Constraint("Horizontal", 3))
sketch6.addConstraint(Sketcher.Constraint("DistanceX", 1, 1, 1, 2, Q("0.09 in")))
sketch6.addConstraint(Sketcher.Constraint("DistanceY", 0, 1, 0, 2, Q("0.0787 in")))
sketch6.addConstraint(Sketcher.Constraint("DistanceY", -1, 1, 0, 2, Q("1.104 in")))
sketch6.addConstraint(Sketcher.Constraint("DistanceX", -1, 1, 0, 2, Q("0.2139 in")))
sketch6.setExpression("Constraints[8]", "Params.sketch6_width")
pad3 = body.newObject("PartDesign::Pad", "Pad002")
pad3.Profile = sketch6
pad3.setExpression("Length", "Params.pad3_length")
pad3.Reversed = True

# Sketch on XZ plane
sketch7 = body.newObject("Sketcher::SketchObject", "Sketch006")
sketch7.AttachmentSupport = (doc.getObject("XZ_Plane"), [""])
sketch7.MapMode = "FlatFace"
sketch7.addGeometry(Part.ArcOfCircle(Part.Circle(Vector(-15.87, -12.6, 0), Vector(0, 0, 1), 4.76), math.radians(0), math.radians(38)), False)
sketch7.addGeometry(Part.LineSegment(Vector(-11.11, -12.6, 0), Vector(-11.11, -19.05, 0)), False)
sketch7.addGeometry(Part.ArcOfCircle(Part.Circle(Vector(-6.35, -19.05, 0), Vector(0, 0, 1), 4.76), math.radians(-180), math.radians(-90)), False)
sketch7.addGeometry(Part.LineSegment(Vector(-6.35, -23.81, 0), Vector(-5.98, -23.81, 0)), False)
sketch7.addGeometry(Part.ArcOfCircle(Part.Circle(Vector(-5.98, -19.05, 0), Vector(0, 0, 1), 4.76), math.radians(-90), math.radians(-47)), False)
sketch7.addGeometry(Part.ArcOfCircle(Part.Circle(Vector(0, -25.4, 0), Vector(0, 0, 1), 3.96), math.radians(47), math.radians(133)), False)
sketch7.addGeometry(Part.ArcOfCircle(Part.Circle(Vector(5.98, -19.05, 0), Vector(0, 0, 1), 4.76), math.radians(-133), math.radians(-90)), False)
sketch7.addGeometry(Part.LineSegment(Vector(5.98, -23.81, 0), Vector(6.35, -23.81, 0)), False)
sketch7.addGeometry(Part.ArcOfCircle(Part.Circle(Vector(6.35, -19.05, 0), Vector(0, 0, 1), 4.76), math.radians(-90), math.radians(0)), False)
sketch7.addGeometry(Part.LineSegment(Vector(11.11, -19.05, 0), Vector(11.11, -12.6, 0)), False)
sketch7.addGeometry(Part.ArcOfCircle(Part.Circle(Vector(15.87, -12.6, 0), Vector(0, 0, 1), 4.76), math.radians(142), math.radians(180)), False)
sketch7.addGeometry(Part.ArcOfCircle(Part.Circle(Vector(0, 0, 0), Vector(0, 0, 1), 15.51), math.radians(-142), math.radians(-38)), False)
sketch7.addGeometry(Part.Circle(Vector(-6.35, -19.05, 0), Vector(0, 0, 1), 2.38), False)
sketch7.addGeometry(Part.Circle(Vector(6.35, -19.05, 0), Vector(0, 0, 1), 2.38), False)
sketch7.addConstraint(Sketcher.Constraint("Tangent", 0, 1, 1, 1))
sketch7.addConstraint(Sketcher.Constraint("Tangent", 1, 2, 2, 1))
sketch7.addConstraint(Sketcher.Constraint("Tangent", 2, 2, 3, 1))
sketch7.addConstraint(Sketcher.Constraint("Tangent", 3, 2, 4, 1))
sketch7.addConstraint(Sketcher.Constraint("Tangent", 4, 2, 5, 2))
sketch7.addConstraint(Sketcher.Constraint("Tangent", 5, 1, 6, 1))
sketch7.addConstraint(Sketcher.Constraint("Tangent", 6, 2, 7, 1))
sketch7.addConstraint(Sketcher.Constraint("Tangent", 7, 2, 8, 1))
sketch7.addConstraint(Sketcher.Constraint("Tangent", 8, 2, 9, 1))
sketch7.addConstraint(Sketcher.Constraint("Tangent", 9, 2, 10, 2))
sketch7.addConstraint(Sketcher.Constraint("Tangent", 10, 1, 11, 2))
sketch7.addConstraint(Sketcher.Constraint("Tangent", 11, 1, 0, 2))
sketch7.addConstraint(Sketcher.Constraint("Vertical", 1))
sketch7.addConstraint(Sketcher.Constraint("Horizontal", 3))
sketch7.addConstraint(Sketcher.Constraint("Horizontal", 7))
sketch7.addConstraint(Sketcher.Constraint("Vertical", 9))
sketch7.addConstraint(Sketcher.Constraint("Coincident", 11, 3, -1, 1))
sketch7.addConstraint(Sketcher.Constraint("Coincident", 12, 3, 2, 3))
sketch7.addConstraint(Sketcher.Constraint("Coincident", 13, 3, 8, 3))
sketch7.addConstraint(Sketcher.Constraint("Equal", 0, 2))
sketch7.addConstraint(Sketcher.Constraint("Equal", 2, 4))
sketch7.addConstraint(Sketcher.Constraint("Equal", 4, 6))
sketch7.addConstraint(Sketcher.Constraint("Equal", 6, 8))
sketch7.addConstraint(Sketcher.Constraint("Equal", 8, 10))
sketch7.addConstraint(Sketcher.Constraint("Equal", 12, 13))
sketch7.addConstraint(Sketcher.Constraint("Symmetric", 4, 3, 6, 3, -2))
sketch7.addConstraint(Sketcher.Constraint("Horizontal", 0, 3, 10, 3))
sketch7.addConstraint(Sketcher.Constraint("Diameter", 12, Q("0.1875 in")))
sketch7.addConstraint(Sketcher.Constraint("DistanceY", 5, 3, -1, 1, Q("1 in")))
sketch7.addConstraint(Sketcher.Constraint("Radius", 0, Q("0.1875 in")))
sketch7.addConstraint(Sketcher.Constraint("Radius", 5, Q("0.156 in")))
sketch7.addConstraint(Sketcher.Constraint("DistanceX", 2, 3, 8, 3, Q("0.5 in")))
sketch7.addConstraint(Sketcher.Constraint("DistanceY", 2, 3, -1, 1, Q("0.75 in")))
sketch7.addConstraint(Sketcher.Constraint("Radius", 11, 15.505759))
sketch7.setExpression("Constraints[27]", "Params.sketch7_diameter")
sketch7.setExpression("Constraints[29]", "Params.sketch7_radius")
sketch7.setExpression("Constraints[30]", "Params.sketch7_radius2")
pad4 = body.newObject("PartDesign::Pad", "Pad003")
pad4.Profile = sketch7
pad4.setExpression("Length", "Params.pad4_length")
pad4.Reversed = True

doc.recompute()
